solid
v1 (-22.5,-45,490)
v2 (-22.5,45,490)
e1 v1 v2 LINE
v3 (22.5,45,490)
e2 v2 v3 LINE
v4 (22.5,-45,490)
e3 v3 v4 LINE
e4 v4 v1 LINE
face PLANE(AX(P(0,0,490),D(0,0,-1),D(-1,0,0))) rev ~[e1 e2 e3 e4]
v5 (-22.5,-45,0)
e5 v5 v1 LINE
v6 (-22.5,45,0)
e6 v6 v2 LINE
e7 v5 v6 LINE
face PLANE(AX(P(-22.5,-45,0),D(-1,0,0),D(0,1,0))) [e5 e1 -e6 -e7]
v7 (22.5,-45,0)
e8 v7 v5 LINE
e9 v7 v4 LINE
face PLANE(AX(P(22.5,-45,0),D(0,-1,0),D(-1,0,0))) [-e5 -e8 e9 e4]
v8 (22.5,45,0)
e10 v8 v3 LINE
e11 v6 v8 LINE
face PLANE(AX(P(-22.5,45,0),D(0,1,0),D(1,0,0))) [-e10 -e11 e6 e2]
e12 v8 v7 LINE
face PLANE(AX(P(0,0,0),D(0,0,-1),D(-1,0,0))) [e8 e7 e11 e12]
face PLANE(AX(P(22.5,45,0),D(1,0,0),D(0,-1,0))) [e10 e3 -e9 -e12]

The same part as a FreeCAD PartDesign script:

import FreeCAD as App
import Part
import Sketcher

V = App.Vector


def add_polygon(sketch, points):
    """Adds a closed chain of lines whose ends are joined by coincident constraints."""
    first, n = sketch.GeometryCount, len(points)
    for a, b in zip(points, points[1:] + points[:1]):
        sketch.addGeometry(Part.LineSegment(App.Vector(*a, 0), App.Vector(*b, 0)), False)
    for i in range(n):
        sketch.addConstraint(Sketcher.Constraint("Coincident", first + i, 2, first + (i + 1) % n, 1))

doc = App.newDocument("Part")
body = doc.addObject("PartDesign::Body", "Body")

# Sketch on XY plane
sketch1 = doc.addObject("Sketcher::SketchObject", "Sketch")
body.addObject(sketch1)
sketch1.AttachmentSupport = (doc.XY_Plane, [""])
sketch1.MapMode = "FlatFace"
add_polygon(sketch1, [(22, 45), (22, -45), (-22, -45), (-22, 45)])  # lines 0-3
sketch1.addConstraint(Sketcher.Constraint("Vertical", 0))
sketch1.addConstraint(Sketcher.Constraint("Horizontal", 1))
sketch1.addConstraint(Sketcher.Constraint("Vertical", 2))
sketch1.addConstraint(Sketcher.Constraint("Horizontal", 3))
sketch1.addConstraint(Sketcher.Constraint("Symmetric", 0, 2, 2, 2, -1, 1))
sketch1.addConstraint(Sketcher.Constraint("DistanceX", 1, 2, 1, 1, 45.0))
sketch1.addConstraint(Sketcher.Constraint("DistanceY", 0, 2, 0, 1, 90.0))
pad1 = doc.addObject("PartDesign::Pad", "Pad")
body.addObject(pad1)
pad1.Profile = sketch1
pad1.Length = 490

doc.recompute()
